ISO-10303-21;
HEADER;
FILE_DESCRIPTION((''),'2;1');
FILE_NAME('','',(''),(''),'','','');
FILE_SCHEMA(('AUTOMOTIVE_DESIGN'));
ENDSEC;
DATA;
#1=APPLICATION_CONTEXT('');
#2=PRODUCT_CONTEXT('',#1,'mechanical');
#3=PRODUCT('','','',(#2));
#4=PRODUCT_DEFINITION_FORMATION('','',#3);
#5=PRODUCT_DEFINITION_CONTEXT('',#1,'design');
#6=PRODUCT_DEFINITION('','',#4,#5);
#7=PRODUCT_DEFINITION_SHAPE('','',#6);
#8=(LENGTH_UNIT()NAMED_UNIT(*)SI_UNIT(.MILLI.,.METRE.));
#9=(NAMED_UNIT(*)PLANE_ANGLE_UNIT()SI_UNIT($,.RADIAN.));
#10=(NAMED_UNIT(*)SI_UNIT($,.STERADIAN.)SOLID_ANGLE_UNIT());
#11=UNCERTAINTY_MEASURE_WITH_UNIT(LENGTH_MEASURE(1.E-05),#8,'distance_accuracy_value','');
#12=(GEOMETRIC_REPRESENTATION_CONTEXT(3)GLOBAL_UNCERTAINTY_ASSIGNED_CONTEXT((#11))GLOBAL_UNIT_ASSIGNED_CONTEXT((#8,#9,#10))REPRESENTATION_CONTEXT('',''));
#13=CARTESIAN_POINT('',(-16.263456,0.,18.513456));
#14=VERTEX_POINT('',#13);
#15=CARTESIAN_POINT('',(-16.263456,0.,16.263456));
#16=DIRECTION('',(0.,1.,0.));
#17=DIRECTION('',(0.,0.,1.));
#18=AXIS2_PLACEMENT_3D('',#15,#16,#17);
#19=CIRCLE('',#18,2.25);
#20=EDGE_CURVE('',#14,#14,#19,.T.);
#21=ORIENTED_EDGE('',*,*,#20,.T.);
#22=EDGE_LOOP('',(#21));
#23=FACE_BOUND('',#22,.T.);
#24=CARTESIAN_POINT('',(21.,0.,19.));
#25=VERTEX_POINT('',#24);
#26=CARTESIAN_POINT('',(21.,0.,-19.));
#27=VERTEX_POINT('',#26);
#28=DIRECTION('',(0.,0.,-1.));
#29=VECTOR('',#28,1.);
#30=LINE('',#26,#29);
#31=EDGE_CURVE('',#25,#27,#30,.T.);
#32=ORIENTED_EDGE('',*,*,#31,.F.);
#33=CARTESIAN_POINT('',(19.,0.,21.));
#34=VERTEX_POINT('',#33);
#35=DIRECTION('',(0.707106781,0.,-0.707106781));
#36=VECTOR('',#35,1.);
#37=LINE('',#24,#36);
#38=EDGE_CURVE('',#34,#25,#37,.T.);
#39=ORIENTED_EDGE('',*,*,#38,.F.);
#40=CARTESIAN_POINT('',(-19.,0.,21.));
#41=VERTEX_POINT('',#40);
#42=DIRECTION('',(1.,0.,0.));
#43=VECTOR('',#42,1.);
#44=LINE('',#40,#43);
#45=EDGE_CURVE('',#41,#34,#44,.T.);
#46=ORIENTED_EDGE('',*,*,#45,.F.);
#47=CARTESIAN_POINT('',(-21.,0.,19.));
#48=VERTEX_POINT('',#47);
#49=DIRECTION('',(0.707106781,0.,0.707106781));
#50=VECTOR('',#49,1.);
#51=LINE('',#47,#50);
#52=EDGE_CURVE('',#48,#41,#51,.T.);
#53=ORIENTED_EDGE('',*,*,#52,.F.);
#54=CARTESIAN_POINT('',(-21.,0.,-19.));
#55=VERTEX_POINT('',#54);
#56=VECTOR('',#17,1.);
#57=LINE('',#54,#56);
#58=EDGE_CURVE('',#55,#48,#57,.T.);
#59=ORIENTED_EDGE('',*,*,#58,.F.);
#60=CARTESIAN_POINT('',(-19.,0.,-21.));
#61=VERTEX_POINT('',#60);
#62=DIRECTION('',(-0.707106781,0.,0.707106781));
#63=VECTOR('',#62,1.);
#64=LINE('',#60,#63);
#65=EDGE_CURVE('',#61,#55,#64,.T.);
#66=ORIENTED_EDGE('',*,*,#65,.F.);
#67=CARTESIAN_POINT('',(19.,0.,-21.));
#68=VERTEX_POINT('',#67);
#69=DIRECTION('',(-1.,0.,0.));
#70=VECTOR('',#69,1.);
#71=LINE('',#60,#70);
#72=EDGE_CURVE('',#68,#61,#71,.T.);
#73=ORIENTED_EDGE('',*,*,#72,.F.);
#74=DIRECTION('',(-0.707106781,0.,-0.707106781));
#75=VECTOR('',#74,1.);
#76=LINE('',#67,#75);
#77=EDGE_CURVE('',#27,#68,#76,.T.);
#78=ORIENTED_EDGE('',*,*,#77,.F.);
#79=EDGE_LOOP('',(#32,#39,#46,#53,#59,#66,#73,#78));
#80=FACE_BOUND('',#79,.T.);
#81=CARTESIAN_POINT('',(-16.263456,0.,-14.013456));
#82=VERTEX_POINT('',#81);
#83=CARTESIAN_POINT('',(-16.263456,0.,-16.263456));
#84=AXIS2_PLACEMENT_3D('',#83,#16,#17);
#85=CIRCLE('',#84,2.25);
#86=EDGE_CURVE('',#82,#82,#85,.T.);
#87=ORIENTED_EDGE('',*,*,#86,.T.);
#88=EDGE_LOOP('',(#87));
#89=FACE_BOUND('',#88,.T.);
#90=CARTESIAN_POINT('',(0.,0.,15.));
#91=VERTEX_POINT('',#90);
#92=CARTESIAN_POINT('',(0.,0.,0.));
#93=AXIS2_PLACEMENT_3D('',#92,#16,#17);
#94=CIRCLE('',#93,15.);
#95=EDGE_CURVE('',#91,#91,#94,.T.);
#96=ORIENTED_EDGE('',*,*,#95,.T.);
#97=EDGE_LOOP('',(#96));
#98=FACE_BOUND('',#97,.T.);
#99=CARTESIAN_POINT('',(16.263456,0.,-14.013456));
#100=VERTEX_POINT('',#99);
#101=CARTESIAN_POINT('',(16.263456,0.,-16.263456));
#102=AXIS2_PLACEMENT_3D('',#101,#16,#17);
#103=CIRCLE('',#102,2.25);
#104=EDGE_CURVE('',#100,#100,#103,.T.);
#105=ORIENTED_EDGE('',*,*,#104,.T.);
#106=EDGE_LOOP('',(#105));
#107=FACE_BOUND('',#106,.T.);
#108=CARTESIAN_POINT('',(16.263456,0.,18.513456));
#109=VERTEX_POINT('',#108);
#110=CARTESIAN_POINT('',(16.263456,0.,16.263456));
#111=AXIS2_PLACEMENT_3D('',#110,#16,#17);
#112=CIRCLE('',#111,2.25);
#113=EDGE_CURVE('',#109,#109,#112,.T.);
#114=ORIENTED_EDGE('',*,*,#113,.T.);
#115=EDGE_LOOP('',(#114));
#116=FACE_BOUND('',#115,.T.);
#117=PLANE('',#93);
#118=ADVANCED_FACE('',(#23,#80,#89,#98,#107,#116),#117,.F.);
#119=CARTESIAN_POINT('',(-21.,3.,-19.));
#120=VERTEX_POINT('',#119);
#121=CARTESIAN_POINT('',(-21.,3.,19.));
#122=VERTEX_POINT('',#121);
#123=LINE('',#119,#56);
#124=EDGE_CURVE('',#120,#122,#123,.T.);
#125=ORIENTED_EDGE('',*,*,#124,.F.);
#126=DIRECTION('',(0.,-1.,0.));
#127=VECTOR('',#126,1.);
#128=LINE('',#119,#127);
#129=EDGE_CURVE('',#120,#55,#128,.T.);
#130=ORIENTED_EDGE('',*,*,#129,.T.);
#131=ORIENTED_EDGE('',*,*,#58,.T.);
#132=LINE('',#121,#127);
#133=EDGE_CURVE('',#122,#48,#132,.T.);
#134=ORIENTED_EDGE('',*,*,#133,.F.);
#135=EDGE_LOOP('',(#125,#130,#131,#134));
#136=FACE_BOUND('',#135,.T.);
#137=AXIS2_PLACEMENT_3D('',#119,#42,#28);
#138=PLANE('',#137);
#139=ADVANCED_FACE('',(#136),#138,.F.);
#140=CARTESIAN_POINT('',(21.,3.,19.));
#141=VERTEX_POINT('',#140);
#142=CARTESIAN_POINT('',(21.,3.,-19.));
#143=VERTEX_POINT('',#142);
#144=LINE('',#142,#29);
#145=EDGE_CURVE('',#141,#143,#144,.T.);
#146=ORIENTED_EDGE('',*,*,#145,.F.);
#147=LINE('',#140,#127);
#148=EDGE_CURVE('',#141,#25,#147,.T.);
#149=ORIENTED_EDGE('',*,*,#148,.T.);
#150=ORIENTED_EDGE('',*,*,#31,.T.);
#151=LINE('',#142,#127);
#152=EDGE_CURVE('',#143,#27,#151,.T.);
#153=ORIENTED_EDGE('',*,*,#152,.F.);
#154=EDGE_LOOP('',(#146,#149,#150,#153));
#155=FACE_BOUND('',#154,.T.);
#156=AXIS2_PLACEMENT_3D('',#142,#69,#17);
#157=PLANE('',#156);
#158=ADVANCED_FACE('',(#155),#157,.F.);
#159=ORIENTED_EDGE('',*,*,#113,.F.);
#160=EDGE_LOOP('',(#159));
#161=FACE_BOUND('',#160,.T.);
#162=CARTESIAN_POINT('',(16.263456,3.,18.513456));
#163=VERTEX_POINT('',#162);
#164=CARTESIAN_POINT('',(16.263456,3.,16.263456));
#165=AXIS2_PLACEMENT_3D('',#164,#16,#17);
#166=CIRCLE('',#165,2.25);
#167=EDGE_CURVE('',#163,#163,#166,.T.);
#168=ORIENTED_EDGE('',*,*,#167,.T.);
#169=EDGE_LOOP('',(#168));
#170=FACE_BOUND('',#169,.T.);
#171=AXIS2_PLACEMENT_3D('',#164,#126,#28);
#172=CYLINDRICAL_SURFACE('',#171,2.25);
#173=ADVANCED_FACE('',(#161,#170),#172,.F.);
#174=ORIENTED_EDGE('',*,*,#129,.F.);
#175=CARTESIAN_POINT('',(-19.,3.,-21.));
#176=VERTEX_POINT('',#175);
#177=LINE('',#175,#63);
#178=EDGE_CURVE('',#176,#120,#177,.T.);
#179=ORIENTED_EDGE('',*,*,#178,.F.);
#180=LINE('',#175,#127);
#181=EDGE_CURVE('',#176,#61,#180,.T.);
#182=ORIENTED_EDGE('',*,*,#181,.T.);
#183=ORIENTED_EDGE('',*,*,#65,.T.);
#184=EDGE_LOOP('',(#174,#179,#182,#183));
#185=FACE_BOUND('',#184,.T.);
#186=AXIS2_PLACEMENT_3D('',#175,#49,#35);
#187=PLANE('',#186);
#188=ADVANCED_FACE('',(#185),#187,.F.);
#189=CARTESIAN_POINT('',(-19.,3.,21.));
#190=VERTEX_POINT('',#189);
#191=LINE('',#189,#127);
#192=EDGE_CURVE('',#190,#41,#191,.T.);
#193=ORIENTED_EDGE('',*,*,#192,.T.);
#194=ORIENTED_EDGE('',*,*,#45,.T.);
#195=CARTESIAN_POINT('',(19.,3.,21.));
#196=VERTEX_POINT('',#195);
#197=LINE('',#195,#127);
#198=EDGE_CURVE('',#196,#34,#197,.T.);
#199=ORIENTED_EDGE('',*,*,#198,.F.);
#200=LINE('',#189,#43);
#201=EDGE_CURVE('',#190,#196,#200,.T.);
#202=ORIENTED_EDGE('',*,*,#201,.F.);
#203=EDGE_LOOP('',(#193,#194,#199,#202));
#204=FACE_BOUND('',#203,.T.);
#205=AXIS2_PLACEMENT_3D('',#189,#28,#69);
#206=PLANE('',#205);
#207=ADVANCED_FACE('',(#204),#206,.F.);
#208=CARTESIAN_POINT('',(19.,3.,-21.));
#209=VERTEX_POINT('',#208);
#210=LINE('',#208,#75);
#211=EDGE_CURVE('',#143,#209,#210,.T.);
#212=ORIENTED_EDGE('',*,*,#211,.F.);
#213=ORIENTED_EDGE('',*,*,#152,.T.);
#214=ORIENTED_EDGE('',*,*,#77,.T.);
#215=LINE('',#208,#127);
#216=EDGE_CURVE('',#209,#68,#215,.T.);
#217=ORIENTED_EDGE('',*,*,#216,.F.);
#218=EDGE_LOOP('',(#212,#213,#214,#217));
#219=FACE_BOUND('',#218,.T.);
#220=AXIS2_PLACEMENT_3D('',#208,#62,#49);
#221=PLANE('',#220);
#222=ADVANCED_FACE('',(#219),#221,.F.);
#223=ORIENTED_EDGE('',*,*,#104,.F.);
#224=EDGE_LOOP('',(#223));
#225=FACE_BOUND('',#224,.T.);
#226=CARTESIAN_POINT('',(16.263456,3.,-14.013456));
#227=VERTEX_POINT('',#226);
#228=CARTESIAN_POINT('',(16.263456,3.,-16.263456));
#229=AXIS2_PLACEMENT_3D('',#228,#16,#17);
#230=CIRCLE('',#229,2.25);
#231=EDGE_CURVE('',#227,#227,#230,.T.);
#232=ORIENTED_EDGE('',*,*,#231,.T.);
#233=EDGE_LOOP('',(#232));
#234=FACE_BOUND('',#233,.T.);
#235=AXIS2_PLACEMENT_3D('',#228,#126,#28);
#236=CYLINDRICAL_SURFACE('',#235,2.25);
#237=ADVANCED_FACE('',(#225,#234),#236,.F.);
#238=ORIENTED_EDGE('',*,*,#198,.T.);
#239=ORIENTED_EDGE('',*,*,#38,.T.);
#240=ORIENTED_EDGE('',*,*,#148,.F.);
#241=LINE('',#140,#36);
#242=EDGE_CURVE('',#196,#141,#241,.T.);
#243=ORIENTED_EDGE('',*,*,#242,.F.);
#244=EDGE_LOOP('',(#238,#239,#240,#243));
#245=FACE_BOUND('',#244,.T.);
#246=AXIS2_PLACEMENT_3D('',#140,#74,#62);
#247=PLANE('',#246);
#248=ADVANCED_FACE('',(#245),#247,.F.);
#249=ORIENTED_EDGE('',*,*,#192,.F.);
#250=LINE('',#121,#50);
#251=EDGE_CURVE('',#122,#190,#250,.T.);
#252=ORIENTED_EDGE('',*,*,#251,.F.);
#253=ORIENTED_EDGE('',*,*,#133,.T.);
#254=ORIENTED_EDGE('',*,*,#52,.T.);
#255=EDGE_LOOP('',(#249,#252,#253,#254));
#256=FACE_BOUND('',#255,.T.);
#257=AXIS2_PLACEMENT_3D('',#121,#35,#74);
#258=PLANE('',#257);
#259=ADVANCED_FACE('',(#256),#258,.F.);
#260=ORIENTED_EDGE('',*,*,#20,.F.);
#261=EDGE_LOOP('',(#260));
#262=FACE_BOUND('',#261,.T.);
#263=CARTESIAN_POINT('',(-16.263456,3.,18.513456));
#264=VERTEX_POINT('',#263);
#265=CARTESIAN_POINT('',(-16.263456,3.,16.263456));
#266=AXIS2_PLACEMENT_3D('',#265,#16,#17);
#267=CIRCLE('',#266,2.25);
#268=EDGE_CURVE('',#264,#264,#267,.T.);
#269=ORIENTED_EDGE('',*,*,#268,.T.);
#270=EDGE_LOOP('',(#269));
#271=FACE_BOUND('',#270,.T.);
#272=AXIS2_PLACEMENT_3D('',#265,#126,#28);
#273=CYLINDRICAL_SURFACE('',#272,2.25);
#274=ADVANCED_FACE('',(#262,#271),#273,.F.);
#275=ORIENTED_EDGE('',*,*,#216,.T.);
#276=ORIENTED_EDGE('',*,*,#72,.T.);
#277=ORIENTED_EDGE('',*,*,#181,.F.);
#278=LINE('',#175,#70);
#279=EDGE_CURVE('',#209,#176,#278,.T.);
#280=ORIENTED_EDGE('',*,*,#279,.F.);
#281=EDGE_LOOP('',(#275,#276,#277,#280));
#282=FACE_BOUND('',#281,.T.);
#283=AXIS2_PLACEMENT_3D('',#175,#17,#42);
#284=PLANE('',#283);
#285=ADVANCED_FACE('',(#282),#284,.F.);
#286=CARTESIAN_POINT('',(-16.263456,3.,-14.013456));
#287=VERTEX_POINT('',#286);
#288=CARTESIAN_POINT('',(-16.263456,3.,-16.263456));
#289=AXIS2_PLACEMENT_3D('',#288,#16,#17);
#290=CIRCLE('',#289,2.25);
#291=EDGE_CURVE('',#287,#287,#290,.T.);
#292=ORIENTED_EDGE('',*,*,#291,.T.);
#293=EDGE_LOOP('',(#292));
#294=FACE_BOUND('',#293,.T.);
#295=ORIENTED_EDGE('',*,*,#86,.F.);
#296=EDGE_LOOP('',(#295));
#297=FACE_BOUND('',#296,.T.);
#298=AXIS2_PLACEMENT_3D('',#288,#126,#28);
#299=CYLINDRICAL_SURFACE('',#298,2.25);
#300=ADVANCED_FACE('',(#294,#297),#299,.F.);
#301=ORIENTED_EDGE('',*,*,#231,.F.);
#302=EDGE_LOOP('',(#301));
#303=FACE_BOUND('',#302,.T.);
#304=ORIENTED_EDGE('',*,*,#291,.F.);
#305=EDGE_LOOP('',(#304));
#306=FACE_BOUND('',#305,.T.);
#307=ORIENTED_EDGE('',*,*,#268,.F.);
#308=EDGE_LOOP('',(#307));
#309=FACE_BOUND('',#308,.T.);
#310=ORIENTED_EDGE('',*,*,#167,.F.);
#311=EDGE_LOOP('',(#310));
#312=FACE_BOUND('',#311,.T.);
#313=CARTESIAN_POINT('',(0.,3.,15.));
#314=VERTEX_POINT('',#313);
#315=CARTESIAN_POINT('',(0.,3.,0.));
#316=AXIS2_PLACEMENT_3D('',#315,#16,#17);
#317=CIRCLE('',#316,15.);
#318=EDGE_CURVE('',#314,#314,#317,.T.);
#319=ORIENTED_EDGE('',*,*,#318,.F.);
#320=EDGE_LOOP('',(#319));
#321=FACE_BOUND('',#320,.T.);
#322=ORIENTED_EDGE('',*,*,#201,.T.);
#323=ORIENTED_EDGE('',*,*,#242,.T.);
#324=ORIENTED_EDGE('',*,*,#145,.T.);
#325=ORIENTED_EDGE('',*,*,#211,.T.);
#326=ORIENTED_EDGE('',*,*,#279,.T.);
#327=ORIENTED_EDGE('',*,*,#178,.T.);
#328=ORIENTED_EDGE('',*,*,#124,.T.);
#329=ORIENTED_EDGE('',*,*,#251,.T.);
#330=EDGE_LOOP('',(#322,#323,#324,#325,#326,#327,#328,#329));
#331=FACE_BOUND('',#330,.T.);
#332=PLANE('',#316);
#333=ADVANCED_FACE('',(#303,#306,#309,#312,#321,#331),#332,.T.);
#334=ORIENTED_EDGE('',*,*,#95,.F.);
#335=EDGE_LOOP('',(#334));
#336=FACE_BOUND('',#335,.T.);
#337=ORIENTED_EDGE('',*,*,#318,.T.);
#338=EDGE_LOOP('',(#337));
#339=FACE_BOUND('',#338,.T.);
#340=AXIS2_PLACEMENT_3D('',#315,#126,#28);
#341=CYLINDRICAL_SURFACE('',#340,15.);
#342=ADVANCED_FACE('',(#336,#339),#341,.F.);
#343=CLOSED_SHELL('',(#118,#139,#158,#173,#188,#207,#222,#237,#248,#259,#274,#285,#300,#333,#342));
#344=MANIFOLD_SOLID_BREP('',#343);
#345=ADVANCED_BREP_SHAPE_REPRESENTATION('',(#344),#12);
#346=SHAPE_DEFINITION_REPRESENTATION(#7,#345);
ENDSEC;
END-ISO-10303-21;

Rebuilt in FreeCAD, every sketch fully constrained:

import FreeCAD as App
import Part
import Sketcher


def add_polygon(sketch, points):
    """Adds a closed chain of lines whose ends are joined by coincident constraints."""
    first, n = sketch.GeometryCount, len(points)
    for a, b in zip(points, points[1:] + points[:1]):
        sketch.addGeometry(Part.LineSegment(App.Vector(*a, 0), App.Vector(*b, 0)), False)
    for i in range(n):
        sketch.addConstraint(Sketcher.Constraint("Coincident", first + i, 2, first + (i + 1) % n, 1))

doc = App.newDocument("Part")
params = doc.addObject("Spreadsheet::Sheet", "Params")
for row, (alias, value) in enumerate([
    ("sketch1_diameter", "30 mm"),
    ("sketch1_diameter2", "4.5 mm"),
    ("sketch1_width", "38 mm"),
    ("pad1_length", "3 mm"),
], start=1):
    params.set(f"A{row}", alias)
    params.set(f"B{row}", "=" + value)
    params.setAlias(f"B{row}", alias)

body = doc.addObject("PartDesign::Body", "Body")

# Sketch on XZ plane
sketch1 = body.newObject("Sketcher::SketchObject", "Sketch")
sketch1.AttachmentSupport = (doc.getObject("XZ_Plane"), [""])
sketch1.MapMode = "FlatFace"
add_polygon(sketch1, [(21, -19), (19, -21), (-19, -21), (-21, -19), (-21, 19), (-19, 21), (19, 21), (21, 19)])  # lines 0-7
sketch1.addGeometry(Part.Circle(App.Vector(16.263456, 16.263456, 0), App.Vector(0, 0, 1), 2.25), False)  # 8
sketch1.addGeometry(Part.Circle(App.Vector(-16.263456, 16.263456, 0), App.Vector(0, 0, 1), 2.25), False)  # 9
sketch1.addGeometry(Part.Circle(App.Vector(16.263456, -16.263456, 0), App.Vector(0, 0, 1), 2.25), False)  # 10
sketch1.addGeometry(Part.Circle(App.Vector(0, 0, 0), App.Vector(0, 0, 1), 15), False)  # 11
sketch1.addGeometry(Part.Circle(App.Vector(-16.263456, -16.263456, 0), App.Vector(0, 0, 1), 2.25), False)  # 12
sketch1.addConstraint([
    Sketcher.Constraint("Horizontal", 1),
    Sketcher.Constraint("Vertical", 3),
    Sketcher.Constraint("Horizontal", 5),
    Sketcher.Constraint("Vertical", 7),
    Sketcher.Constraint("Coincident", 11, 3, -1, 1),
    Sketcher.Constraint("Equal", 8, 9),
    Sketcher.Constraint("Equal", 9, 10),
    Sketcher.Constraint("Equal", 10, 12),
    Sketcher.Constraint("Symmetric", 9, 3, 10, 3, -1, 1),
    Sketcher.Constraint("Symmetric", 8, 3, 12, 3, -1, 1),
    Sketcher.Constraint("Symmetric", 0, 2, 4, 2, -1, 1),
    Sketcher.Constraint("Symmetric", 2, 2, 6, 2, -1, 1),
    Sketcher.Constraint("Symmetric", 8, 3, 9, 3, -2),
    Sketcher.Constraint("Perpendicular", 0, 2),
    Sketcher.Constraint("Perpendicular", 2, 4),
    Sketcher.Constraint("Perpendicular", 4, 6),
    Sketcher.Constraint("Horizontal", 3, 2, 6, 2),
    Sketcher.Constraint("Vertical", 1, 2, 4, 2),
    Sketcher.Constraint("Equal", 5, 3),
    Sketcher.Constraint("Diameter", 11, 30.0),
    Sketcher.Constraint("Diameter", 8, 4.5),
    Sketcher.Constraint("DistanceX", 1, 2, 1, 1, 38.0),
    Sketcher.Constraint("DistanceY", 0, 2, -1, 1, 21.0),
    Sketcher.Constraint("DistanceX", 9, 3, 8, 3, 32.526912),
    Sketcher.Constraint("DistanceY", 10, 3, 8, 3, 32.526912),
])
sketch1.setExpression("Constraints[27]", "Params.sketch1_diameter")
sketch1.setExpression("Constraints[28]", "Params.sketch1_diameter2")
sketch1.setExpression("Constraints[29]", "Params.sketch1_width")
pad1 = body.newObject("PartDesign::Pad", "Pad")
pad1.Profile = sketch1
pad1.setExpression("Length", "Params.pad1_length")
pad1.Reversed = True

doc.recompute()
